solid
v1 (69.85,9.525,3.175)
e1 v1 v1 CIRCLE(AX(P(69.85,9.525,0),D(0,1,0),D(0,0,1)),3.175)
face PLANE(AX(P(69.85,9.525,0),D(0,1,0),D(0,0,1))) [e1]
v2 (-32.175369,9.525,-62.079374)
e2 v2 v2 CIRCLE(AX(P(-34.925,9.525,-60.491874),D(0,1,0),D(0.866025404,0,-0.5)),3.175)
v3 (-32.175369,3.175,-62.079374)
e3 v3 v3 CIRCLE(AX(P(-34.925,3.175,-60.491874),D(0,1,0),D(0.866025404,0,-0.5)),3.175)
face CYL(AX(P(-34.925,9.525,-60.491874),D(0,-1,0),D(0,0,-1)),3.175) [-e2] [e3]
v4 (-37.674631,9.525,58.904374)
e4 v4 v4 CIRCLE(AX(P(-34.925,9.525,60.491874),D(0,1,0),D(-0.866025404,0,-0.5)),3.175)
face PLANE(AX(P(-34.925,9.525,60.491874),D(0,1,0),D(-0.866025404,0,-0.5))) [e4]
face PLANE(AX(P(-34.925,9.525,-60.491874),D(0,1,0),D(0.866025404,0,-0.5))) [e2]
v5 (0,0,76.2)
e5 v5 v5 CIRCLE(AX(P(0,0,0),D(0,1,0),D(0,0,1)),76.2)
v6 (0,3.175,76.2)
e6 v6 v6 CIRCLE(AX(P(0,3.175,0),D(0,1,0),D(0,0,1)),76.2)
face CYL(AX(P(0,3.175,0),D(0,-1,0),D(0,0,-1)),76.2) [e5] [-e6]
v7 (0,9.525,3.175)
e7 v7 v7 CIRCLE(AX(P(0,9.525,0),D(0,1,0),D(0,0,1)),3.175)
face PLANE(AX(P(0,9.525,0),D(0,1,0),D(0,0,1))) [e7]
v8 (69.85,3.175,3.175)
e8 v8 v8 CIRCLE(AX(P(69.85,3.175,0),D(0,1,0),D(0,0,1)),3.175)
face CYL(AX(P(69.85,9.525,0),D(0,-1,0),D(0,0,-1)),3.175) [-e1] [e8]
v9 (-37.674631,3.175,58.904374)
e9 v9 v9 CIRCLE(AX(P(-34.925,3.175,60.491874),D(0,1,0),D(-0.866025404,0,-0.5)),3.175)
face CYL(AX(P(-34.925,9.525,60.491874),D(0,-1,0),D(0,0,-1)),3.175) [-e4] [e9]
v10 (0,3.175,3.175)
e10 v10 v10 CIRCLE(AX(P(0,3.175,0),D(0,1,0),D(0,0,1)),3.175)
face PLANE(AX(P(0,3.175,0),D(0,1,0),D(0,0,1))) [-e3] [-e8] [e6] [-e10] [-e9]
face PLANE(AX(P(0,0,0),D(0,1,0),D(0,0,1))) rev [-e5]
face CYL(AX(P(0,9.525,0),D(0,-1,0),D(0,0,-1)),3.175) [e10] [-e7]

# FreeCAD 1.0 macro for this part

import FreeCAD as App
import Part
import Sketcher
from FreeCAD import Vector
Q = App.Units.Quantity

doc = App.newDocument("Part")
params = doc.addObject("Spreadsheet::Sheet", "Params")
for row, (alias, value) in enumerate([
    ("sketch1_diameter", "6 in"),
    ("pad1_length", "0.125 in"),
    ("sketch2_diameter", "0.25 in"),
    ("pad2_length", "0.25 in"),
], start=1):
    params.set(f"A{row}", alias)
    params.set(f"B{row}", "=" + value)
    params.setAlias(f"B{row}", alias)

body = doc.addObject("PartDesign::Body", "Body")

# Sketch on XZ plane
sketch1 = body.newObject("Sketcher::SketchObject", "Sketch")
sketch1.AttachmentSupport = (doc.getObject("XZ_Plane"), [""])
sketch1.MapMode = "FlatFace"
sketch1.addGeometry(Part.Circle(Vector(0, 0, 0), Vector(0, 0, 1), 76.2), False)
sketch1.addConstraint([
    Sketcher.Constraint("Coincident", 0, 3, -1, 1),
    Sketcher.Constraint("Diameter", 0, Q("6 in")),
])
sketch1.setExpression("Constraints[1]", "Params.sketch1_diameter")
pad1 = body.newObject("PartDesign::Pad", "Pad")
pad1.Profile = sketch1
pad1.setExpression("Length", "Params.pad1_length")
pad1.Reversed = True

# Sketch on XZ plane
sketch2 = body.newObject("Sketcher::SketchObject", "Sketch001")
sketch2.AttachmentSupport = (doc.getObject("XZ_Plane"), [""])
sketch2.MapMode = "FlatFace"
sketch2.AttachmentOffset = App.Placement(Vector(0, 0, -0.125 * 25.4), App.Rotation())
sketch2.addGeometry([
    Part.Circle(Vector(0, 0, 0), Vector(0, 0, 1), 3.175),
    Part.Circle(Vector(69.85, 0, 0), Vector(0, 0, 1), 3.175),
], False)
sketch2.addConstraint([
    Sketcher.Constraint("Coincident", 0, 3, -1, 1),
    Sketcher.Constraint("Equal", 0, 1),
    Sketcher.Constraint("PointOnObject", 1, 3, -1),
    Sketcher.Constraint("Diameter", 0, Q("0.25 in")),
    Sketcher.Constraint("DistanceX", -1, 1, 1, 3, Q("2.75 in")),
])
sketch2.setExpression("Constraints[3]", "Params.sketch2_diameter")
pad2 = body.newObject("PartDesign::Pad", "Pad001")
pad2.Profile = sketch2
pad2.setExpression("Length", "Params.pad2_length")
pad2.Reversed = True
doc.recompute()

polarpattern = body.newObject("PartDesign::PolarPattern", "PolarPattern")
polarpattern.Originals = [pad2]
polarpattern.Axis = (doc.getObject("Y_Axis"), [""])
polarpattern.Angle = 360
polarpattern.Occurrences = 3
body.Tip = polarpattern

doc.recompute()
